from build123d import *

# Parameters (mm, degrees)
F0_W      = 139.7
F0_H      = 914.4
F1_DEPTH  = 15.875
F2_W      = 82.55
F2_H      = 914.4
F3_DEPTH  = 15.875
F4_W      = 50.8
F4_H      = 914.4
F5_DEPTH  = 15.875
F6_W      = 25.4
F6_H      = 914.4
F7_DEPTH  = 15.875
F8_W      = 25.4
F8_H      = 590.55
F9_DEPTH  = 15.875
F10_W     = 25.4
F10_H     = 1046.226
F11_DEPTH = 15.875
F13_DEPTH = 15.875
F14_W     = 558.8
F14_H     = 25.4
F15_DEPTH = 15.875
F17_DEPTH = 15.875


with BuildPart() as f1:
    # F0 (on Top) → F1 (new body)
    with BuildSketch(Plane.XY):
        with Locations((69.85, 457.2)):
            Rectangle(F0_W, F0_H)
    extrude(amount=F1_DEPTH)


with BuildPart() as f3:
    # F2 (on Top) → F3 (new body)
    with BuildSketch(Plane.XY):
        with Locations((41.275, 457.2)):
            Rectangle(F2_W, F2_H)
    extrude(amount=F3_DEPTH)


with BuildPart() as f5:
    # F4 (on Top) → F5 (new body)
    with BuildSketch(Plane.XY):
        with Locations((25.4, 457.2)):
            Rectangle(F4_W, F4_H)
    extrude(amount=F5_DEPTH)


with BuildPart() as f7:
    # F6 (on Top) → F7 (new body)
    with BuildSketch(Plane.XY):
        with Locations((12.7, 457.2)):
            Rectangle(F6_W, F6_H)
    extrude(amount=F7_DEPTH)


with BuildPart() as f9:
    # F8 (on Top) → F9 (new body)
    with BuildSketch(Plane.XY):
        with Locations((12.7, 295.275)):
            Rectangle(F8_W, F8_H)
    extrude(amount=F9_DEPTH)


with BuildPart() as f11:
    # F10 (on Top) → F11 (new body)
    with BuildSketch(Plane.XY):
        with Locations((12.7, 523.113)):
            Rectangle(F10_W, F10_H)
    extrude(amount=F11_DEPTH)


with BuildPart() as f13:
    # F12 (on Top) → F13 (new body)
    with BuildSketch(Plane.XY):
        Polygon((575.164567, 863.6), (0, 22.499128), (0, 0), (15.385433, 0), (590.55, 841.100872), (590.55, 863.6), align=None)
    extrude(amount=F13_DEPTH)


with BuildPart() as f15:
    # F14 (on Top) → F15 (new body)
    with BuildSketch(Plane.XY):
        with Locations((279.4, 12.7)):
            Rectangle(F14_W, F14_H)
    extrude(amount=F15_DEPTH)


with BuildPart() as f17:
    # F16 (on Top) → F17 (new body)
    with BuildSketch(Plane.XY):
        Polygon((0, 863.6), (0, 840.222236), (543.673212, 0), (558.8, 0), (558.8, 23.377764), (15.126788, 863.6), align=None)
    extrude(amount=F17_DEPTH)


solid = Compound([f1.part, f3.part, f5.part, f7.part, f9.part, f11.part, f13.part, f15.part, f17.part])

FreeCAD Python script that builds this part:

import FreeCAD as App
import Part
import Sketcher
from FreeCAD import Vector
Q = App.Units.Quantity

doc = App.newDocument("Part")
body = doc.addObject("PartDesign::Body", "Body")

sketch1 = body.newObject("Sketcher::SketchObject", "Sketch")
sketch1.AttachmentSupport = (doc.getObject("XY_Plane"), [""])
sketch1.MapMode = "FlatFace"
sketch1.addGeometry([
    Part.LineSegment(Vector(0, 914.4, 0), Vector(0, 0, 0)),
    Part.LineSegment(Vector(0, 0, 0), Vector(139.7, 0, 0)),
    Part.LineSegment(Vector(139.7, 0, 0), Vector(139.7, 914.4, 0)),
    Part.LineSegment(Vector(139.7, 914.4, 0), Vector(0, 914.4, 0)),
], False)
sketch1.addConstraint([
    Sketcher.Constraint("Coincident", 0, 2, 1, 1),
    Sketcher.Constraint("Coincident", 1, 2, 2, 1),
    Sketcher.Constraint("Coincident", 2, 2, 3, 1),
    Sketcher.Constraint("Coincident", 3, 2, 0, 1),
    Sketcher.Constraint("Vertical", 0),
    Sketcher.Constraint("Horizontal", 1),
    Sketcher.Constraint("Vertical", 2),
    Sketcher.Constraint("Horizontal", 3),
    Sketcher.Constraint("Coincident", 0, 2, -1, 1),
    Sketcher.Constraint("DistanceY", 0, 2, 0, 1, Q("36 in")),
    Sketcher.Constraint("DistanceX", 1, 1, 1, 2, Q("5.5 in")),
])
pad1 = body.newObject("PartDesign::Pad", "Pad")
pad1.Profile = sketch1
pad1.Length = Q("0.625 in")
body2 = doc.addObject("PartDesign::Body", "Body001")

sketch2 = body2.newObject("Sketcher::SketchObject", "Sketch001")
sketch2.AttachmentSupport = (doc.getObject("XY_Plane001"), [""])
sketch2.MapMode = "FlatFace"
sketch2.addGeometry([
    Part.LineSegment(Vector(0, 914.4, 0), Vector(0, 0, 0)),
    Part.LineSegment(Vector(0, 0, 0), Vector(82.55, 0, 0)),
    Part.LineSegment(Vector(82.55, 0, 0), Vector(82.55, 914.4, 0)),
    Part.LineSegment(Vector(82.55, 914.4, 0), Vector(0, 914.4, 0)),
], False)
sketch2.addConstraint([
    Sketcher.Constraint("Coincident", 0, 2, 1, 1),
    Sketcher.Constraint("Coincident", 1, 2, 2, 1),
    Sketcher.Constraint("Coincident", 2, 2, 3, 1),
    Sketcher.Constraint("Coincident", 3, 2, 0, 1),
    Sketcher.Constraint("Vertical", 0),
    Sketcher.Constraint("Horizontal", 1),
    Sketcher.Constraint("Vertical", 2),
    Sketcher.Constraint("Horizontal", 3),
    Sketcher.Constraint("Coincident", 0, 2, -1, 1),
    Sketcher.Constraint("DistanceY", 0, 2, 0, 1, Q("36 in")),
    Sketcher.Constraint("DistanceX", 1, 1, 1, 2, Q("3.25 in")),
])
pad2 = body2.newObject("PartDesign::Pad", "Pad001")
pad2.Profile = sketch2
pad2.Length = Q("0.625 in")
body3 = doc.addObject("PartDesign::Body", "Body002")

sketch3 = body3.newObject("Sketcher::SketchObject", "Sketch002")
sketch3.AttachmentSupport = (doc.getObject("XY_Plane002"), [""])
sketch3.MapMode = "FlatFace"
sketch3.addGeometry([
    Part.LineSegment(Vector(0, 914.4, 0), Vector(0, 0, 0)),
    Part.LineSegment(Vector(0, 0, 0), Vector(50.8, 0, 0)),
    Part.LineSegment(Vector(50.8, 0, 0), Vector(50.8, 914.4, 0)),
    Part.LineSegment(Vector(50.8, 914.4, 0), Vector(0, 914.4, 0)),
], False)
sketch3.addConstraint([
    Sketcher.Constraint("Coincident", 0, 2, 1, 1),
    Sketcher.Constraint("Coincident", 1, 2, 2, 1),
    Sketcher.Constraint("Coincident", 2, 2, 3, 1),
    Sketcher.Constraint("Coincident", 3, 2, 0, 1),
    Sketcher.Constraint("Vertical", 0),
    Sketcher.Constraint("Horizontal", 1),
    Sketcher.Constraint("Vertical", 2),
    Sketcher.Constraint("Horizontal", 3),
    Sketcher.Constraint("Coincident", 0, 2, -1, 1),
    Sketcher.Constraint("DistanceX", 1, 1, 1, 2, Q("2 in")),
    Sketcher.Constraint("DistanceY", 0, 2, 0, 1, Q("36 in")),
])
pad3 = body3.newObject("PartDesign::Pad", "Pad002")
pad3.Profile = sketch3
pad3.Length = Q("0.625 in")
body4 = doc.addObject("PartDesign::Body", "Body003")

sketch4 = body4.newObject("Sketcher::SketchObject", "Sketch003")
sketch4.AttachmentSupport = (doc.getObject("XY_Plane003"), [""])
sketch4.MapMode = "FlatFace"
sketch4.addGeometry([
    Part.LineSegment(Vector(0, 914.4, 0), Vector(0, 0, 0)),
    Part.LineSegment(Vector(0, 0, 0), Vector(25.4, 0, 0)),
    Part.LineSegment(Vector(25.4, 0, 0), Vector(25.4, 914.4, 0)),
    Part.LineSegment(Vector(25.4, 914.4, 0), Vector(0, 914.4, 0)),
], False)
sketch4.addConstraint([
    Sketcher.Constraint("Coincident", 0, 2, 1, 1),
    Sketcher.Constraint("Coincident", 1, 2, 2, 1),
    Sketcher.Constraint("Coincident", 2, 2, 3, 1),
    Sketcher.Constraint("Coincident", 3, 2, 0, 1),
    Sketcher.Constraint("Vertical", 0),
    Sketcher.Constraint("Horizontal", 1),
    Sketcher.Constraint("Vertical", 2),
    Sketcher.Constraint("Horizontal", 3),
    Sketcher.Constraint("Coincident", 0, 2, -1, 1),
    Sketcher.Constraint("DistanceX", 1, 1, 1, 2, Q("1 in")),
    Sketcher.Constraint("DistanceY", 0, 2, 0, 1, Q("36 in")),
])
pad4 = body4.newObject("PartDesign::Pad", "Pad003")
pad4.Profile = sketch4
pad4.Length = Q("0.625 in")
body5 = doc.addObject("PartDesign::Body", "Body004")

sketch5 = body5.newObject("Sketcher::SketchObject", "Sketch004")
sketch5.AttachmentSupport = (doc.getObject("XY_Plane004"), [""])
sketch5.MapMode = "FlatFace"
sketch5.addGeometry([
    Part.LineSegment(Vector(0, 590.55, 0), Vector(0, 0, 0)),
    Part.LineSegment(Vector(0, 0, 0), Vector(25.4, 0, 0)),
    Part.LineSegment(Vector(25.4, 0, 0), Vector(25.4, 590.55, 0)),
    Part.LineSegment(Vector(25.4, 590.55, 0), Vector(0, 590.55, 0)),
], False)
sketch5.addConstraint([
    Sketcher.Constraint("Coincident", 0, 2, 1, 1),
    Sketcher.Constraint("Coincident", 1, 2, 2, 1),
    Sketcher.Constraint("Coincident", 2, 2, 3, 1),
    Sketcher.Constraint("Coincident", 3, 2, 0, 1),
    Sketcher.Constraint("Vertical", 0),
    Sketcher.Constraint("Horizontal", 1),
    Sketcher.Constraint("Vertical", 2),
    Sketcher.Constraint("Horizontal", 3),
    Sketcher.Constraint("Coincident", 0, 2, -1, 1),
    Sketcher.Constraint("DistanceX", 1, 1, 1, 2, Q("1 in")),
    Sketcher.Constraint("DistanceY", 0, 2, 0, 1, Q("23.25 in")),
])
pad5 = body5.newObject("PartDesign::Pad", "Pad004")
pad5.Profile = sketch5
pad5.Length = Q("0.625 in")
body6 = doc.addObject("PartDesign::Body", "Body005")

sketch6 = body6.newObject("Sketcher::SketchObject", "Sketch005")
sketch6.AttachmentSupport = (doc.getObject("XY_Plane005"), [""])
sketch6.MapMode = "FlatFace"
sketch6.addGeometry([
    Part.LineSegment(Vector(0, 1046.226, 0), Vector(0, 0, 0)),
    Part.LineSegment(Vector(0, 0, 0), Vector(25.4, 0, 0)),
    Part.LineSegment(Vector(25.4, 0, 0), Vector(25.4, 1046.226, 0)),
    Part.LineSegment(Vector(25.4, 1046.226, 0), Vector(0, 1046.226, 0)),
], False)
sketch6.addConstraint([
    Sketcher.Constraint("Coincident", 0, 2, 1, 1),
    Sketcher.Constraint("Coincident", 1, 2, 2, 1),
    Sketcher.Constraint("Coincident", 2, 2, 3, 1),
    Sketcher.Constraint("Coincident", 3, 2, 0, 1),
    Sketcher.Constraint("Vertical", 0),
    Sketcher.Constraint("Horizontal", 1),
    Sketcher.Constraint("Vertical", 2),
    Sketcher.Constraint("Horizontal", 3),
    Sketcher.Constraint("Coincident", 0, 2, -1, 1),
    Sketcher.Constraint("DistanceX", 1, 1, 1, 2, Q("1 in")),
    Sketcher.Constraint("DistanceY", 0, 2, 0, 1, Q("41.19 in")),
])
pad6 = body6.newObject("PartDesign::Pad", "Pad005")
pad6.Profile = sketch6
pad6.Length = Q("0.625 in")
body7 = doc.addObject("PartDesign::Body", "Body006")

sketch7 = body7.newObject("Sketcher::SketchObject", "Sketch006")
sketch7.AttachmentSupport = (doc.getObject("XY_Plane006"), [""])
sketch7.MapMode = "FlatFace"
sketch7.addGeometry([
    Part.LineSegment(Vector(575.164567, 863.6, 0), Vector(0, 22.499128, 0)),
    Part.LineSegment(Vector(0, 22.499128, 0), Vector(0, 0, 0)),
    Part.LineSegment(Vector(0, 0, 0), Vector(15.385433, 0, 0)),
    Part.LineSegment(Vector(15.385433, 0, 0), Vector(590.55, 841.100872, 0)),
    Part.LineSegment(Vector(590.55, 841.100872, 0), Vector(590.55, 863.6, 0)),
    Part.LineSegment(Vector(590.55, 863.6, 0), Vector(575.164567, 863.6, 0)),
], False)
sketch7.addConstraint([
    Sketcher.Constraint("Coincident", 0, 2, 1, 1),
    Sketcher.Constraint("Coincident", 1, 2, 2, 1),
    Sketcher.Constraint("Coincident", 2, 2, 3, 1),
    Sketcher.Constraint("Coincident", 3, 2, 4, 1),
    Sketcher.Constraint("Coincident", 4, 2, 5, 1),
    Sketcher.Constraint("Coincident", 5, 2, 0, 1),
    Sketcher.Constraint("Vertical", 1),
    Sketcher.Constraint("Horizontal", 2),
    Sketcher.Constraint("Vertical", 4),
    Sketcher.Constraint("Horizontal", 5),
    Sketcher.Constraint("Coincident", 1, 2, -1, 1),
    Sketcher.Constraint("Parallel", 0, 3),
    Sketcher.Constraint("Equal", 2, 5),
    Sketcher.Constraint("DistanceY", -1, 1, 4, 2, Q("34 in")),
    Sketcher.Constraint("DistanceX", -1, 1, 3, 2, Q("23.25 in")),
    Sketcher.Constraint("DistanceY", 4, 1, 4, 2, 22.499128),
    Sketcher.Constraint("DistanceX", 2, 1, 2, 2, 15.385433),
])
pad7 = body7.newObject("PartDesign::Pad", "Pad006")
pad7.Profile = sketch7
pad7.Length = Q("0.625 in")
body8 = doc.addObject("PartDesign::Body", "Body007")

sketch8 = body8.newObject("Sketcher::SketchObject", "Sketch007")
sketch8.AttachmentSupport = (doc.getObject("XY_Plane007"), [""])
sketch8.MapMode = "FlatFace"
sketch8.addGeometry([
    Part.LineSegment(Vector(0, 25.4, 0), Vector(0, 0, 0)),
    Part.LineSegment(Vector(0, 0, 0), Vector(558.8, 0, 0)),
    Part.LineSegment(Vector(558.8, 0, 0), Vector(558.8, 25.4, 0)),
    Part.LineSegment(Vector(558.8, 25.4, 0), Vector(0, 25.4, 0)),
], False)
sketch8.addConstraint([
    Sketcher.Constraint("Coincident", 0, 2, 1, 1),
    Sketcher.Constraint("Coincident", 1, 2, 2, 1),
    Sketcher.Constraint("Coincident", 2, 2, 3, 1),
    Sketcher.Constraint("Coincident", 3, 2, 0, 1),
    Sketcher.Constraint("Vertical", 0),
    Sketcher.Constraint("Horizontal", 1),
    Sketcher.Constraint("Vertical", 2),
    Sketcher.Constraint("Horizontal", 3),
    Sketcher.Constraint("Coincident", 0, 2, -1, 1),
    Sketcher.Constraint("DistanceX", 1, 1, 1, 2, Q("22 in")),
    Sketcher.Constraint("DistanceY", 0, 2, 0, 1, Q("1 in")),
])
pad8 = body8.newObject("PartDesign::Pad", "Pad007")
pad8.Profile = sketch8
pad8.Length = Q("0.625 in")
body9 = doc.addObject("PartDesign::Body", "Body008")

sketch9 = body9.newObject("Sketcher::SketchObject", "Sketch008")
sketch9.AttachmentSupport = (doc.getObject("XY_Plane008"), [""])
sketch9.MapMode = "FlatFace"
sketch9.addGeometry([
    Part.LineSegment(Vector(0, 863.6, 0), Vector(0, 840.222236, 0)),
    Part.LineSegment(Vector(0, 840.222236, 0), Vector(543.673212, 0, 0)),
    Part.LineSegment(Vector(543.673212, 0, 0), Vector(558.8, 0, 0)),
    Part.LineSegment(Vector(558.8, 0, 0), Vector(558.8, 23.377764, 0)),
    Part.LineSegment(Vector(558.8, 23.377764, 0), Vector(15.126788, 863.6, 0)),
    Part.LineSegment(Vector(15.126788, 863.6, 0), Vector(0, 863.6, 0)),
], False)
sketch9.addConstraint([
    Sketcher.Constraint("Coincident", 0, 2, 1, 1),
    Sketcher.Constraint("Coincident", 1, 2, 2, 1),
    Sketcher.Constraint("Coincident", 2, 2, 3, 1),
    Sketcher.Constraint("Coincident", 3, 2, 4, 1),
    Sketcher.Constraint("Coincident", 4, 2, 5, 1),
    Sketcher.Constraint("Coincident", 5, 2, 0, 1),
    Sketcher.Constraint("Vertical", 0),
    Sketcher.Constraint("Horizontal", 2),
    Sketcher.Constraint("Vertical", 3),
    Sketcher.Constraint("Horizontal", 5),
    Sketcher.Constraint("PointOnObject", 0, 2, -2),
    Sketcher.Constraint("PointOnObject", 1, 2, -1),
    Sketcher.Constraint("Parallel", 1, 4),
    Sketcher.Constraint("Equal", 2, 5),
    Sketcher.Constraint("DistanceX", -1, 1, 2, 2, Q("22 in")),
    Sketcher.Constraint("DistanceY", -1, 1, 4, 2, Q("34 in")),
    Sketcher.Constraint("DistanceX", 2, 1, 2, 2, 15.126788),
    Sketcher.Constraint("DistanceY", 0, 2, 0, 1, 23.377764),
])
pad9 = body9.newObject("PartDesign::Pad", "Pad008")
pad9.Profile = sketch9
pad9.Length = Q("0.625 in")

doc.recompute()
